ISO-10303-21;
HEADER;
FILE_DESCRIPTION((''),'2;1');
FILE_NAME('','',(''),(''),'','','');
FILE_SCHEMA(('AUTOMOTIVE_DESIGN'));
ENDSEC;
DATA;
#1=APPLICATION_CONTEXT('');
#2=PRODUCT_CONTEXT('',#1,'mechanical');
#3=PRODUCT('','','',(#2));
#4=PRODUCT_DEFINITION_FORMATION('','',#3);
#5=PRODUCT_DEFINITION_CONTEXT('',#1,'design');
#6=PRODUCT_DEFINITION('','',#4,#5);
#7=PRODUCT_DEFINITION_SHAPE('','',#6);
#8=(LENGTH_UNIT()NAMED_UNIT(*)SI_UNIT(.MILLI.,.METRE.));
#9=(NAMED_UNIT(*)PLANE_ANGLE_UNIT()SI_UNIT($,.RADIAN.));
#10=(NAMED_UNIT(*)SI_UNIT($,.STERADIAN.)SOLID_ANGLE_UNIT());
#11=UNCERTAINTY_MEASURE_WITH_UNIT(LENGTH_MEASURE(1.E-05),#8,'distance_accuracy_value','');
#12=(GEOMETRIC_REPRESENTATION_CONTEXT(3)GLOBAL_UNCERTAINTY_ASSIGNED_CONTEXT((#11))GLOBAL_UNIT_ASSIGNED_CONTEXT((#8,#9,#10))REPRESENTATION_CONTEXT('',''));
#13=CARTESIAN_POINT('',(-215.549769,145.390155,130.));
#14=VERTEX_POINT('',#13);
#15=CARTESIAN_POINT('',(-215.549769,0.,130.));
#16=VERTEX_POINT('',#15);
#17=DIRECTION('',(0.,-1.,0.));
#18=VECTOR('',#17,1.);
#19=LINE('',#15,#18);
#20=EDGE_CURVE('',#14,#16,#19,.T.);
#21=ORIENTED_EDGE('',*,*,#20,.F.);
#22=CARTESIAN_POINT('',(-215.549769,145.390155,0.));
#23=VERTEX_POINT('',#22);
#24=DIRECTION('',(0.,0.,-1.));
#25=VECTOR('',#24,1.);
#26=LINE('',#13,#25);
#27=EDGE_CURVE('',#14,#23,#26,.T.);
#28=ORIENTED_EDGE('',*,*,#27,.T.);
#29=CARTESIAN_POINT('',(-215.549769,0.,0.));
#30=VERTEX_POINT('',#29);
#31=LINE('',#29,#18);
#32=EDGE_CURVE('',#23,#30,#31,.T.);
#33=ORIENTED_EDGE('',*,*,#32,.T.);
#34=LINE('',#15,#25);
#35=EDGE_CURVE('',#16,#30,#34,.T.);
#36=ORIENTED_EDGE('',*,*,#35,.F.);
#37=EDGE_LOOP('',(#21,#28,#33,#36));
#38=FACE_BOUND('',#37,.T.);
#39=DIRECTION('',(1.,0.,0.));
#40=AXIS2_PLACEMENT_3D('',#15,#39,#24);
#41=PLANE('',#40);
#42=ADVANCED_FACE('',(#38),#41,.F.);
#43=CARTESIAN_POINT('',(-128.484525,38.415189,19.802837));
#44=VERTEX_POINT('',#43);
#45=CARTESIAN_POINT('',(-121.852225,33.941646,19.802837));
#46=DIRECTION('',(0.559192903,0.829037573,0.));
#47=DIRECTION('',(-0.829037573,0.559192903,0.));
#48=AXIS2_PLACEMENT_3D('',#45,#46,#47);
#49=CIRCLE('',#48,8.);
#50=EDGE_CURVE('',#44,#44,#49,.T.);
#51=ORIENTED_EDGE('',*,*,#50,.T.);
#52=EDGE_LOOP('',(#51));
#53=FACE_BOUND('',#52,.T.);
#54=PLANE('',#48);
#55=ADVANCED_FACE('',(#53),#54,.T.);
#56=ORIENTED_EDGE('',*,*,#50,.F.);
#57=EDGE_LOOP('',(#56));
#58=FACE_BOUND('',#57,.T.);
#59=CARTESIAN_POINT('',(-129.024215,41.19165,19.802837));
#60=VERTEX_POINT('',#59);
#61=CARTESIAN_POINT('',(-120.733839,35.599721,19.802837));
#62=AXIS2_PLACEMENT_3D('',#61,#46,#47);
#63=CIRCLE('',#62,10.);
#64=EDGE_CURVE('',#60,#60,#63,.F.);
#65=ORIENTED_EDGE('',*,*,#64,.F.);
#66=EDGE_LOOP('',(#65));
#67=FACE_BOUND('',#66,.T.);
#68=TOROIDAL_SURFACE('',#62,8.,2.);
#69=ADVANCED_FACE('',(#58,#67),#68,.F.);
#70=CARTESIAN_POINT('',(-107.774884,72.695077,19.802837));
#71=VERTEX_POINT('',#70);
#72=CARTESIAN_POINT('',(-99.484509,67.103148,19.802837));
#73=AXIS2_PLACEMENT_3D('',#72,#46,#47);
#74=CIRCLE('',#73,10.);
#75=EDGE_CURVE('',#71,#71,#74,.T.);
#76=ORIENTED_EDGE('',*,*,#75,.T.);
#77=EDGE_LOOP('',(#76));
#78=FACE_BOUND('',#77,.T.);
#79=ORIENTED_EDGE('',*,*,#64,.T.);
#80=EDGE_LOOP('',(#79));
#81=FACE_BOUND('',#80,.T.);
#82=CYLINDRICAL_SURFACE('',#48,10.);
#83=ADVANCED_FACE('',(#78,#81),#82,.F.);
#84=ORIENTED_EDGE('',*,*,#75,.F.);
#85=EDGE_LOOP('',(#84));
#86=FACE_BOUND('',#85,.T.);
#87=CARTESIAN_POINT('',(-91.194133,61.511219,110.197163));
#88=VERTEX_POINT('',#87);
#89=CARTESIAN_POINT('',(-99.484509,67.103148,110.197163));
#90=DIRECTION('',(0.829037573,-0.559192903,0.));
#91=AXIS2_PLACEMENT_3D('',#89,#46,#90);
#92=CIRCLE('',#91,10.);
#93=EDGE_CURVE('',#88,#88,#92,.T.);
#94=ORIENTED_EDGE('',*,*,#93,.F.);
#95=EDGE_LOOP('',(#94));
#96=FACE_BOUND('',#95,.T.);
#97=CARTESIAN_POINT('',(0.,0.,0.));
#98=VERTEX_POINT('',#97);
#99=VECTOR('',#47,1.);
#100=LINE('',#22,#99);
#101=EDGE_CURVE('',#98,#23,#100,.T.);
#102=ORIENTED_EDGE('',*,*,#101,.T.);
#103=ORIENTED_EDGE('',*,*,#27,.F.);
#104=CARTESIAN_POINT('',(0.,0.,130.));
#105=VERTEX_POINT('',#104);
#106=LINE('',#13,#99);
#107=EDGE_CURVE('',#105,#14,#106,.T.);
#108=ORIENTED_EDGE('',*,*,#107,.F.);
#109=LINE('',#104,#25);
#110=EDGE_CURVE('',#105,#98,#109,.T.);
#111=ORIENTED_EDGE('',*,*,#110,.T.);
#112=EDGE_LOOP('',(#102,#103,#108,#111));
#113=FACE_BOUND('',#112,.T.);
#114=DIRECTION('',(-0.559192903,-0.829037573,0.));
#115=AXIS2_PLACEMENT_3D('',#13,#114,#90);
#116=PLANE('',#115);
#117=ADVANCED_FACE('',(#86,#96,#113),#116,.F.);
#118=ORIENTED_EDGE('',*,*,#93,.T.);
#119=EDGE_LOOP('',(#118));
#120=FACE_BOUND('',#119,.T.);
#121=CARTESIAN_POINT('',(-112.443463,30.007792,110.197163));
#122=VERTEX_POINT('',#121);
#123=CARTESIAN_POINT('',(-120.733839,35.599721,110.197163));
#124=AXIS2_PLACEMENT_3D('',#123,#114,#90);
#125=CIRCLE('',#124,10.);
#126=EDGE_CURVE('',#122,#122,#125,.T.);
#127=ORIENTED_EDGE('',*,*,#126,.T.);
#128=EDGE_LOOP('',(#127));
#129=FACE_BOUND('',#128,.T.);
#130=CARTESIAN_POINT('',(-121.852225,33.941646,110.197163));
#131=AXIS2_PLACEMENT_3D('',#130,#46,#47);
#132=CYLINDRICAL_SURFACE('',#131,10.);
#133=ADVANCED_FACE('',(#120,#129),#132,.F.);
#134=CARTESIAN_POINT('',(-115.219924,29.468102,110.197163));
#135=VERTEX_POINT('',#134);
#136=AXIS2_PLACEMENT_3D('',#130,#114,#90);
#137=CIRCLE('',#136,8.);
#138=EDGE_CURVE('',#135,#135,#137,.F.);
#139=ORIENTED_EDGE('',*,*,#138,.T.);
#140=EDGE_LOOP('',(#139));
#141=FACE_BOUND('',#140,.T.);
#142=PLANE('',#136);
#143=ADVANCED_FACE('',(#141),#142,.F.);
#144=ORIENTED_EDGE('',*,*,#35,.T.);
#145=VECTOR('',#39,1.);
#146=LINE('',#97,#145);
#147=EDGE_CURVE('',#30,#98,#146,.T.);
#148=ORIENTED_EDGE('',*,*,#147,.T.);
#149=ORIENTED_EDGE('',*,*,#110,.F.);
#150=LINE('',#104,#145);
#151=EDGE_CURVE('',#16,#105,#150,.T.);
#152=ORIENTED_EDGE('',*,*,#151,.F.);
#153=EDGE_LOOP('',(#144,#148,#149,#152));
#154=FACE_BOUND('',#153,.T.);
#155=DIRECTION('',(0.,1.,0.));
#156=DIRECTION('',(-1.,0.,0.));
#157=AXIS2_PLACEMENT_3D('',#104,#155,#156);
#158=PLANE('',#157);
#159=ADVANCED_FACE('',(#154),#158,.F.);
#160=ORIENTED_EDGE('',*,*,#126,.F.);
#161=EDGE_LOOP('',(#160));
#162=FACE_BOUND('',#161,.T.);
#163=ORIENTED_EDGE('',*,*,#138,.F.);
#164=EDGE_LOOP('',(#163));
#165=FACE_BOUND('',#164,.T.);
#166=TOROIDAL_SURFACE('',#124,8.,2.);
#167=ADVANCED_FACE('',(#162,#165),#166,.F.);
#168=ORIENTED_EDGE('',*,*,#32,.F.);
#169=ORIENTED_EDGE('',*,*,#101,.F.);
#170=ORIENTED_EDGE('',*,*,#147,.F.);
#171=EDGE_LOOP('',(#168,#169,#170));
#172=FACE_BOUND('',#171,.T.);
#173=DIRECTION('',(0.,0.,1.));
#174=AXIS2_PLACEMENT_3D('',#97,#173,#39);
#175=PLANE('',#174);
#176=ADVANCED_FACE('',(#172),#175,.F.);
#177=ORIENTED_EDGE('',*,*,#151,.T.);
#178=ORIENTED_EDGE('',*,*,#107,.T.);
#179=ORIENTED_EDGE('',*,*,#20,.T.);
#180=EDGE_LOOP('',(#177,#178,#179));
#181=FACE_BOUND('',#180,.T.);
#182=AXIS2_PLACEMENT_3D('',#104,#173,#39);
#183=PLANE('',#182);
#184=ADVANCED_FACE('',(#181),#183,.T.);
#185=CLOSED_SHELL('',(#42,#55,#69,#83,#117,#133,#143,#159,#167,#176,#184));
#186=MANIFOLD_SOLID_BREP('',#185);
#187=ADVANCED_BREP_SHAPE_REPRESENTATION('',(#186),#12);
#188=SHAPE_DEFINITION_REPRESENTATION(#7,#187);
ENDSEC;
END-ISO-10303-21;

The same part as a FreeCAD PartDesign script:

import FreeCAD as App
import Part
import Sketcher
from FreeCAD import Vector
Q = App.Units.Quantity


def edges_at(feature, points):
    """Names of the edges that pass closest to the given points."""
    edges = feature.Shape.Edges
    near = lambda p: min(range(len(edges)), key=lambda i: edges[i].distToShape(Part.Vertex(*p))[0])
    return sorted({f"Edge{near(p) + 1}" for p in points})

doc = App.newDocument("Part")
body = doc.addObject("PartDesign::Body", "Body")

sketch1 = body.newObject("Sketcher::SketchObject", "Sketch")
sketch1.AttachmentSupport = (doc.getObject("XY_Plane"), [""])
sketch1.MapMode = "FlatFace"
sketch1.addGeometry([
    Part.LineSegment(Vector(-216, 0, 0), Vector(0, 0, 0)),
    Part.LineSegment(Vector(0, 0, 0), Vector(-216, 145, 0)),
    Part.LineSegment(Vector(-216, 145, 0), Vector(-216, 0, 0)),
], False)
sketch1.addConstraint([
    Sketcher.Constraint("Coincident", 0, 2, 1, 1),
    Sketcher.Constraint("Coincident", 1, 2, 2, 1),
    Sketcher.Constraint("Coincident", 2, 2, 0, 1),
    Sketcher.Constraint("Horizontal", 0),
    Sketcher.Constraint("Vertical", 2),
    Sketcher.Constraint("Coincident", 0, 2, -1, 1),
    Sketcher.Constraint("Angle", 1, Q("146 deg")),
    Sketcher.Constraint("Distance", 1, 260.0),
])
pad1 = body.newObject("PartDesign::Pad", "Pad")
pad1.Profile = sketch1
pad1.Length = 130

sketch2 = body.newObject("Sketcher::SketchObject", "Sketch001")
sketch2.Placement = App.Placement(Vector(0, 0, 0), App.Rotation(Vector(0.829037573, -0.559192903, 0), Vector(0, 0, -1), Vector(0.559192903, 0.829037573, 0), "ZXY"))
sketch2.addGeometry([
    Part.Circle(Vector(-120, -20, 0), Vector(0, 0, 1), 10),
    Part.Circle(Vector(-120, -110, 0), Vector(0, 0, 1), 10),
], False)
sketch2.addConstraint([
    Sketcher.Constraint("Equal", 0, 1),
    Sketcher.Constraint("Vertical", 0, 3, 1, 3),
    Sketcher.Constraint("Diameter", 0, 20.0),
    Sketcher.Constraint("DistanceX", 0, 3, -1, 1, 120.0),
    Sketcher.Constraint("DistanceY", 0, 3, -1, 1, 19.802837),
    Sketcher.Constraint("DistanceY", 1, 3, -1, 1, 110.197163),
])
pocket1 = body.newObject("PartDesign::Pocket", "Pocket")
pocket1.Profile = sketch2
pocket1.Length = 40
doc.recompute()

fillet = body.newObject("PartDesign::Fillet", "Fillet")
fillet.Base = (pocket1, edges_at(pocket1, [(-130.143, 39.534, 19.803)]))
fillet.Radius = 2
doc.recompute()

fillet2 = body.newObject("PartDesign::Fillet", "Fillet001")
fillet2.Base = (fillet, edges_at(fillet, [(-130.143, 39.534, 110.197)]))
fillet2.Radius = 2

doc.recompute()
